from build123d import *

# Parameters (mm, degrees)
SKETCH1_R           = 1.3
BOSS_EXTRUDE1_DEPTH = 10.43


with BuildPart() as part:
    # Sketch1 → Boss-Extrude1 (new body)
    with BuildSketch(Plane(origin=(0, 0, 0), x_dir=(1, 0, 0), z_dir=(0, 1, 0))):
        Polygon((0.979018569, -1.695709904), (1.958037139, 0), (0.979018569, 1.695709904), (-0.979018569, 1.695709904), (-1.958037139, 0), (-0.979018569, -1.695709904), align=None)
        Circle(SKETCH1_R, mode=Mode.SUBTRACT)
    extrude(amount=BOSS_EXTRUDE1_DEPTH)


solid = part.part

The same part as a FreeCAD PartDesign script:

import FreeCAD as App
import Part
import Sketcher

V = App.Vector
Q = App.Units.Quantity

doc = App.newDocument("Part")
params = doc.addObject("Spreadsheet::Sheet", "Params")
for row, (alias, value) in enumerate([
    ("sketch1_diameter", "2.6 mm"),
    ("pad1_length", "10.43 mm"),
], start=1):
    params.set(f"A{row}", alias)
    params.set(f"B{row}", "=" + value)
    params.setAlias(f"B{row}", alias)

body = doc.addObject("PartDesign::Body", "Body")

sketch1 = body.newObject("Sketcher::SketchObject", "Sketch")
sketch1.AttachmentSupport = (doc.getObject("XZ_Plane"), [""])
sketch1.MapMode = "FlatFace"
sketch1.addGeometry([
    Part.LineSegment(V(0.979019, 1.69571, 0), V(1.958037, 0, 0)),
    Part.LineSegment(V(1.958037, 0, 0), V(0.979019, -1.69571, 0)),
    Part.LineSegment(V(0.979019, -1.69571, 0), V(-0.979019, -1.69571, 0)),
    Part.LineSegment(V(-0.979019, -1.69571, 0), V(-1.958037, 0, 0)),
    Part.LineSegment(V(-1.958037, 0, 0), V(-0.979019, 1.69571, 0)),
    Part.LineSegment(V(-0.979019, 1.69571, 0), V(0.979019, 1.69571, 0)),
    Part.Circle(V(0, 0, 0), V(0, 0, 1), 1.3),
], False)
sketch1.addConstraint([
    Sketcher.Constraint("Coincident", 0, 2, 1, 1),
    Sketcher.Constraint("Coincident", 1, 2, 2, 1),
    Sketcher.Constraint("Coincident", 2, 2, 3, 1),
    Sketcher.Constraint("Coincident", 3, 2, 4, 1),
    Sketcher.Constraint("Coincident", 4, 2, 5, 1),
    Sketcher.Constraint("Coincident", 5, 2, 0, 1),
    Sketcher.Constraint("Horizontal", 2),
    Sketcher.Constraint("Horizontal", 5),
    Sketcher.Constraint("Coincident", 6, 3, -1, 1),
    Sketcher.Constraint("Symmetric", 0, 2, 3, 2, -1, 1),
    Sketcher.Constraint("Symmetric", 1, 2, 4, 2, -1, 1),
    Sketcher.Constraint("PointOnObject", 0, 2, -1),
    Sketcher.Constraint("Parallel", 0, 3),
    Sketcher.Constraint("Vertical", 2, 2, 4, 2),
    Sketcher.Constraint("Diameter", 6, Q("2.6 mm")),
    Sketcher.Constraint("Angle", 0, Q("-60 deg")),
    Sketcher.Constraint("DistanceX", 2, 2, 2, 1, Q("1.958037 mm")),
    Sketcher.Constraint("DistanceY", 1, 2, -1, 1, Q("1.69571 mm")),
])
sketch1.setExpression("Constraints[14]", "Params.sketch1_diameter")
pad1 = body.newObject("PartDesign::Pad", "Pad")
pad1.Profile = sketch1
pad1.setExpression("Length", "Params.pad1_length")
pad1.Reversed = True

doc.recompute()
